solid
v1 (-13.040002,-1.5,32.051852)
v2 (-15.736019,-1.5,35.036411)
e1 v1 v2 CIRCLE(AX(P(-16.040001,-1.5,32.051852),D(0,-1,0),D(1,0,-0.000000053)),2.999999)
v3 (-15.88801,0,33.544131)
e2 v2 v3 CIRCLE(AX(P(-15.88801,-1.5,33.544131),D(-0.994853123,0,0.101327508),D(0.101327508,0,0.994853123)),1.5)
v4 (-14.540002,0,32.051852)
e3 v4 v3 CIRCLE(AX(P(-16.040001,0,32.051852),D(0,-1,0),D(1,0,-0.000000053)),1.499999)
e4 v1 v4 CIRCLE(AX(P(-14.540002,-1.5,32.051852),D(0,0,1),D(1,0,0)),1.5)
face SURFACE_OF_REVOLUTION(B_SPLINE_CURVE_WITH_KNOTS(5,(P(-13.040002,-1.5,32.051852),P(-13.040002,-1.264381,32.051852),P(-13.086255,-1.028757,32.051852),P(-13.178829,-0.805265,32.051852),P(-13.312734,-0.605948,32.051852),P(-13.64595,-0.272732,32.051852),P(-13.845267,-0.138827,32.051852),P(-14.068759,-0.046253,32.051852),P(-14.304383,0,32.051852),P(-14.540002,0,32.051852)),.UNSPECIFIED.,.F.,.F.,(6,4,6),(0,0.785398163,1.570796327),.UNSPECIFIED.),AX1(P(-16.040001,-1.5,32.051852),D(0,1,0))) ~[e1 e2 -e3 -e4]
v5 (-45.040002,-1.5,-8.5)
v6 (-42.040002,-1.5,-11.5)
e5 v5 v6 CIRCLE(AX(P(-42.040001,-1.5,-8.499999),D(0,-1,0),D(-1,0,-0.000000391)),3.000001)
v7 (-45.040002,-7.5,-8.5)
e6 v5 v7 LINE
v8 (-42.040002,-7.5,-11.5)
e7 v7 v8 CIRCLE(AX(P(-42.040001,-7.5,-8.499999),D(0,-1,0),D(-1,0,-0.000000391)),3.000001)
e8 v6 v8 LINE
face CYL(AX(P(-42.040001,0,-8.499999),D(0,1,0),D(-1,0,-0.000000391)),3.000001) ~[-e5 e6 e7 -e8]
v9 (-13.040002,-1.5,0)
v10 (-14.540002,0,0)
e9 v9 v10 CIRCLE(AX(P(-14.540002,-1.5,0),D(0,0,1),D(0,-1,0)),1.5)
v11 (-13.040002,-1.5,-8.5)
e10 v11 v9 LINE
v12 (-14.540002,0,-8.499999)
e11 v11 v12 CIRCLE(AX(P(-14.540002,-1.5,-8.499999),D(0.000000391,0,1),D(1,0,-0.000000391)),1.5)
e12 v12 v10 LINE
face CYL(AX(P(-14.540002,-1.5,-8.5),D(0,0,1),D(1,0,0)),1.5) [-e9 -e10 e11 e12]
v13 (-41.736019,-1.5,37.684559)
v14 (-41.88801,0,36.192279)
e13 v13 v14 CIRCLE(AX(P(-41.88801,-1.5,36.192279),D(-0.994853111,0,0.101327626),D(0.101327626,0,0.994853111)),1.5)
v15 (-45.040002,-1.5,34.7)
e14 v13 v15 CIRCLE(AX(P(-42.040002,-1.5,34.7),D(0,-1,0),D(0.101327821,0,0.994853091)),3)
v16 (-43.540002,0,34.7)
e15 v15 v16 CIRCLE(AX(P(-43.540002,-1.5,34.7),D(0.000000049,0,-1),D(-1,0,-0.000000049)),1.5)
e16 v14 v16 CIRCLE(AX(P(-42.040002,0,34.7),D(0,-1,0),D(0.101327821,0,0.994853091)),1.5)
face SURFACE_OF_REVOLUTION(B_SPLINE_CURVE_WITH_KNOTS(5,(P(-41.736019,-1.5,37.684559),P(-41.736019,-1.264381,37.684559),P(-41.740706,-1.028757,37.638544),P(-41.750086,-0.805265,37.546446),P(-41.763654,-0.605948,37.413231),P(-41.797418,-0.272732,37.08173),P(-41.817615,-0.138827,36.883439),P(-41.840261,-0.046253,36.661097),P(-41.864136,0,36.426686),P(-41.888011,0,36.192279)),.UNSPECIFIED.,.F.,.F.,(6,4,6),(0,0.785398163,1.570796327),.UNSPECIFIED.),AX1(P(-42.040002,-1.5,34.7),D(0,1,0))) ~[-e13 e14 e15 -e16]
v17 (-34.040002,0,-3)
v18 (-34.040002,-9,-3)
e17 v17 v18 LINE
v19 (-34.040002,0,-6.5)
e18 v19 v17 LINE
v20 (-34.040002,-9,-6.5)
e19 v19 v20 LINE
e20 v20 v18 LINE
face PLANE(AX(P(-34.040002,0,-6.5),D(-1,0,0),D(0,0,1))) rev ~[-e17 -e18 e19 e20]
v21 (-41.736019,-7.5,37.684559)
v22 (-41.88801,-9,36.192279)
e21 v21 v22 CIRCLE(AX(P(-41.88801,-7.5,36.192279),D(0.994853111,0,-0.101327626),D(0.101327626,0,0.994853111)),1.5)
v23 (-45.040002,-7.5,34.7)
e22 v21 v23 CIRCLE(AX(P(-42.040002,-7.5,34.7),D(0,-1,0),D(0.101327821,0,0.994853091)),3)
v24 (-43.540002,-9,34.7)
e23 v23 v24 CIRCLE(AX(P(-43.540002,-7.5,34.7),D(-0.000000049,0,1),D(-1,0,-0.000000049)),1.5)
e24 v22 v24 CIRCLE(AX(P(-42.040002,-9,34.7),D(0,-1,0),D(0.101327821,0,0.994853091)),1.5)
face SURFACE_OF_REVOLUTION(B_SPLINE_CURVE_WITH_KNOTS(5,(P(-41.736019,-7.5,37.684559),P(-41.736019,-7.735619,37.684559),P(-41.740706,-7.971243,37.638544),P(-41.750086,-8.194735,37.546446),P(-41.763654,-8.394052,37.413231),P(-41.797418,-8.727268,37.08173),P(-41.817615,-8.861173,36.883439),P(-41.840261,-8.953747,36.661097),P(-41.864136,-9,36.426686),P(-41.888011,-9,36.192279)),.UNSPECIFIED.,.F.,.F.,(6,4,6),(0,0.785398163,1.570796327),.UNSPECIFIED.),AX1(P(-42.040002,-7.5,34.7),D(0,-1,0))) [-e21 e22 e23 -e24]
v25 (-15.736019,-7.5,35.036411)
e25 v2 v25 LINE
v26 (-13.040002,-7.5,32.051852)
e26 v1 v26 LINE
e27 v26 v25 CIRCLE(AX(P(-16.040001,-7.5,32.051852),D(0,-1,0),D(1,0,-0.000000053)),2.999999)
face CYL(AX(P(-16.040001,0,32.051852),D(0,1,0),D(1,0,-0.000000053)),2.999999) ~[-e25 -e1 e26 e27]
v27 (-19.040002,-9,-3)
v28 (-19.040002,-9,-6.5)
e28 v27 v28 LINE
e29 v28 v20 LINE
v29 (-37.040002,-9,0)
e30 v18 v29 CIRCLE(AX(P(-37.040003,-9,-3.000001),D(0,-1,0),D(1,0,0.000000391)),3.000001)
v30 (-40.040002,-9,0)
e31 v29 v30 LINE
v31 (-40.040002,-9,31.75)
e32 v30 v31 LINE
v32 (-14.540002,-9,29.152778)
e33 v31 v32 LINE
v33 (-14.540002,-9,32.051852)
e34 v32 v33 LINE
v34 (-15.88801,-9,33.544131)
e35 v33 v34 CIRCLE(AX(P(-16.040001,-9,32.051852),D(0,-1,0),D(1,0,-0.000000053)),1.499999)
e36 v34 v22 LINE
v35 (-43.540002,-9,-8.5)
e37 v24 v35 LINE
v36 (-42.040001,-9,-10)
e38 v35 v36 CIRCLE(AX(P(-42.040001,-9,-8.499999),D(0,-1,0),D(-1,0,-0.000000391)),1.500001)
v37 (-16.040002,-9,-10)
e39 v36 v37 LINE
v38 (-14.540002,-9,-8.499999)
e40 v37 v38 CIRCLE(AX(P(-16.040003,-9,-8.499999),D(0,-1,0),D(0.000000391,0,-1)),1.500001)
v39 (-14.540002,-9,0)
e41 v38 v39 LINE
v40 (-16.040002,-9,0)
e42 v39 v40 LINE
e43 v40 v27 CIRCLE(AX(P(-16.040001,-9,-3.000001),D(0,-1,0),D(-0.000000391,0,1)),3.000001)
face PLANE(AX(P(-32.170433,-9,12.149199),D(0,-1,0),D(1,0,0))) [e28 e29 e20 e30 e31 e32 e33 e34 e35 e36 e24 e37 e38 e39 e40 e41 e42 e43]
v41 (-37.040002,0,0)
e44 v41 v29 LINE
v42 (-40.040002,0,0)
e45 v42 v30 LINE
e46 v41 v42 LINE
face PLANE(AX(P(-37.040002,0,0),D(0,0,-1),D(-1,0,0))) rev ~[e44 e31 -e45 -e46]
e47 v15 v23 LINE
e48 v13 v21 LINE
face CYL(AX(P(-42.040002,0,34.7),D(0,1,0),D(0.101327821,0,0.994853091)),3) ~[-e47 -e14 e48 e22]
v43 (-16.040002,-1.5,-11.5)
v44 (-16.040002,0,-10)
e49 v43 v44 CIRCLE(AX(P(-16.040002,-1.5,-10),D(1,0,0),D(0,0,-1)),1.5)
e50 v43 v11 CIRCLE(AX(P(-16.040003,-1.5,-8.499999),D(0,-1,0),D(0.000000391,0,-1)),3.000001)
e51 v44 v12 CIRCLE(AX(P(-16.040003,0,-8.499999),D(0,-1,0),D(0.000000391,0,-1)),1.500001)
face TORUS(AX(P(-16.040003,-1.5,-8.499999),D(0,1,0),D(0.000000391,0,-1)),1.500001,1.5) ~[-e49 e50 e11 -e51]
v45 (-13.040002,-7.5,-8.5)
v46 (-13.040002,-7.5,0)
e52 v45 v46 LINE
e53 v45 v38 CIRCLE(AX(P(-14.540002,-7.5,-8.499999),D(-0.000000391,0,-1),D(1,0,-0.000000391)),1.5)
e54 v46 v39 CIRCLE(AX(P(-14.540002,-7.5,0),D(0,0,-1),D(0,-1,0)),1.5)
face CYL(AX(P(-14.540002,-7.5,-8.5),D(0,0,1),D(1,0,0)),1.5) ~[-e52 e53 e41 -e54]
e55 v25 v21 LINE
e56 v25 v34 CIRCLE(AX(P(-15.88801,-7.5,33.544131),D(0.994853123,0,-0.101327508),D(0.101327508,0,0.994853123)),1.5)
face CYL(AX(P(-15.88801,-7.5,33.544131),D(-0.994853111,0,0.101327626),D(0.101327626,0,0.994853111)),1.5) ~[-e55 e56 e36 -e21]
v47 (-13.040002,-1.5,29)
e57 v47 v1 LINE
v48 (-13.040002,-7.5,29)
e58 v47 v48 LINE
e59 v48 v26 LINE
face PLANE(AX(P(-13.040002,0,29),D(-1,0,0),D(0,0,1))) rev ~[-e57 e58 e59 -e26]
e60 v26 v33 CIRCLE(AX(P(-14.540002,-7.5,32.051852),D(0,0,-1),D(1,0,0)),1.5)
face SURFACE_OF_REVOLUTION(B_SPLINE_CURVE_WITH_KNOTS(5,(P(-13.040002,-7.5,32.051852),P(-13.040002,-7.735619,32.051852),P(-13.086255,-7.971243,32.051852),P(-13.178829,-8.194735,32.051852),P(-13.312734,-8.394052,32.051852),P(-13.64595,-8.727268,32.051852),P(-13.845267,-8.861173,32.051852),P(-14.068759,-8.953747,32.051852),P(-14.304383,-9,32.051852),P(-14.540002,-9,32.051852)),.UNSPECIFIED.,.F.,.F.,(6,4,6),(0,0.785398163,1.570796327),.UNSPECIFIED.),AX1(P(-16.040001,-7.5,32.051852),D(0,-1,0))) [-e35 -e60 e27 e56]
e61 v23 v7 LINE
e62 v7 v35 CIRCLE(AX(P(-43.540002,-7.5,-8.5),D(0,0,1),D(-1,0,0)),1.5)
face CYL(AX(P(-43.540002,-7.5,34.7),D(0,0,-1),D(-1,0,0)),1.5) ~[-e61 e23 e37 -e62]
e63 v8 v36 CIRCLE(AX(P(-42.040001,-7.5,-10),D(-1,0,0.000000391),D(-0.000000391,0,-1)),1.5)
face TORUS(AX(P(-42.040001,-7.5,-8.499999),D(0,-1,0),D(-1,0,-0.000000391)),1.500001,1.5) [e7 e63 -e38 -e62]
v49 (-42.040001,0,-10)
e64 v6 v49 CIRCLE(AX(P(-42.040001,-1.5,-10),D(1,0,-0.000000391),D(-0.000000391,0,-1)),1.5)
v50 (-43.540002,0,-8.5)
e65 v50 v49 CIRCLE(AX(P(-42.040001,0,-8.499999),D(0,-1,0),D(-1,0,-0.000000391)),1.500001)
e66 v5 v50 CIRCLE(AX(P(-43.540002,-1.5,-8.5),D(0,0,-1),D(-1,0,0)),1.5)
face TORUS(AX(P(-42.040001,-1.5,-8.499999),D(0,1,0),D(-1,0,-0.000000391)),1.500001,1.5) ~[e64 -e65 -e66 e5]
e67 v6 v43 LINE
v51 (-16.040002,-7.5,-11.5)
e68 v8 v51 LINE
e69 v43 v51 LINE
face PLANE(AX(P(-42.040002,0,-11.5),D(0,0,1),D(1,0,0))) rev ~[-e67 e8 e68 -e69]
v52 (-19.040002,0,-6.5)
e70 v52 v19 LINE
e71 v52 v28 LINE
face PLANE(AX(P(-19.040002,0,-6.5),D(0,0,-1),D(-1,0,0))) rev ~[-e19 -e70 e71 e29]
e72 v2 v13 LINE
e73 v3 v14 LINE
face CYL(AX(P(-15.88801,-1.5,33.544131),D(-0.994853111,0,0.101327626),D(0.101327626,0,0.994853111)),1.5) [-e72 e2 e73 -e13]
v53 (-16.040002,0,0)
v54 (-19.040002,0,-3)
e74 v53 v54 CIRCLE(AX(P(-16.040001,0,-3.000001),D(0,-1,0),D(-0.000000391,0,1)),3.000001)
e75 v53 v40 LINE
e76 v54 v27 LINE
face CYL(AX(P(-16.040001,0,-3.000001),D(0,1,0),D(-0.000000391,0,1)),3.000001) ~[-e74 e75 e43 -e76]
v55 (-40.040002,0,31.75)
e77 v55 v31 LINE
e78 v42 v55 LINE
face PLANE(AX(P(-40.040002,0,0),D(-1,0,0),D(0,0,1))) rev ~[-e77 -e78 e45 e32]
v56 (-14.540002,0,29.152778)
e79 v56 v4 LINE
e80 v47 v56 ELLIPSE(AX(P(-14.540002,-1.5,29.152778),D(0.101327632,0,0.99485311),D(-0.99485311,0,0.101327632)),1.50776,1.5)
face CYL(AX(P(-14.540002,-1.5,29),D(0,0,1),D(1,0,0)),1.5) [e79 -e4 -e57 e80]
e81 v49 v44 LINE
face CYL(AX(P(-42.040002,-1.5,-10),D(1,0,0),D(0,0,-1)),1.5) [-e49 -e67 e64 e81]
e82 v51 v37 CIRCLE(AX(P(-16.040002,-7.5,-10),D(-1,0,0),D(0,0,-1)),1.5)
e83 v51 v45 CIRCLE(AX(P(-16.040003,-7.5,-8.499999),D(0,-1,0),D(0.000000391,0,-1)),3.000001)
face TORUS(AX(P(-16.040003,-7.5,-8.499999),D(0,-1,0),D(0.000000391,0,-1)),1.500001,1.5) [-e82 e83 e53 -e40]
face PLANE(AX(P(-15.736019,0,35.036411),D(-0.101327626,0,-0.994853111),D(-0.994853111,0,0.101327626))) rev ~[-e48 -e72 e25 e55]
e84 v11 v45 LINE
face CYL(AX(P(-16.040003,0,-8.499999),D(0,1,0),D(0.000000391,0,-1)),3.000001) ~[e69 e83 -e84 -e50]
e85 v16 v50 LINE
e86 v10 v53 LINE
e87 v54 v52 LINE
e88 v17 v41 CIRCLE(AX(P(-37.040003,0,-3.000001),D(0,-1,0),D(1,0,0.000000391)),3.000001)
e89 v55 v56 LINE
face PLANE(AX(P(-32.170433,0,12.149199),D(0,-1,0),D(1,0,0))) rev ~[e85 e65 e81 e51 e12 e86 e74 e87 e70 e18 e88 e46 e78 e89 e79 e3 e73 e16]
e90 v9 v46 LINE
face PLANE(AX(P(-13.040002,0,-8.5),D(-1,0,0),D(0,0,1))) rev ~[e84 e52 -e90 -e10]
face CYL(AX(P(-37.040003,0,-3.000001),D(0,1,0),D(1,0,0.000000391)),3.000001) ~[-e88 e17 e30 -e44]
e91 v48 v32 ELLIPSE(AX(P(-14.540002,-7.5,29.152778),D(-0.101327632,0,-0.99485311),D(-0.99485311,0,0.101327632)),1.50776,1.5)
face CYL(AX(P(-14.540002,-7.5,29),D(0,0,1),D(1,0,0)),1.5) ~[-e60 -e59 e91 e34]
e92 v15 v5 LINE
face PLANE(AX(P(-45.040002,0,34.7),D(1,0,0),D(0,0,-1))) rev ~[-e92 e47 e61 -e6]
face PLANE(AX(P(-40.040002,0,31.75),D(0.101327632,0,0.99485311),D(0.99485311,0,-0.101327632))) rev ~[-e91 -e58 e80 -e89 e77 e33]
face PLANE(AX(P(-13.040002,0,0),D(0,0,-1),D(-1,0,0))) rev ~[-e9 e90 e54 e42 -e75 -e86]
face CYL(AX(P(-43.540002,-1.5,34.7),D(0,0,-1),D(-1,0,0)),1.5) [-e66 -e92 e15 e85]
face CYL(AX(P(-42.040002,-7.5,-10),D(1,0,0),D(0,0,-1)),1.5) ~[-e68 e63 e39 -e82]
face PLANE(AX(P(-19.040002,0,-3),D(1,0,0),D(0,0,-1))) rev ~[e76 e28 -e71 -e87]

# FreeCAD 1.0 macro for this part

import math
import FreeCAD as App
import Part
import Sketcher
Q = App.Units.Quantity


def edges_at(feature, points):
    """Names of the edges that pass closest to the given points."""
    edges = feature.Shape.Edges
    near = lambda p: min(range(len(edges)), key=lambda i: edges[i].distToShape(Part.Vertex(*p))[0])
    return sorted({f"Edge{near(p) + 1}" for p in points})

doc = App.newDocument("Part")
body = doc.addObject("PartDesign::Body", "Body")

sketch1 = doc.addObject("Sketcher::SketchObject", "Sketch")
body.addObject(sketch1)
sketch1.AttachmentSupport = (doc.XZ_Plane, [""])
sketch1.MapMode = "FlatFace"
sketch1.addGeometry([
    Part.LineSegment(App.Vector(-40.040002, 31.75, 0), App.Vector(-13.040002, 29, 0)),
    Part.LineSegment(App.Vector(-13.040002, 29, 0), App.Vector(-13.040002, 32.051852, 0)),
    Part.ArcOfCircle(Part.Circle(App.Vector(-16.040001, 32.051852, 0), App.Vector(0, 0, 1), 2.999999), math.radians(-0.000003), math.radians(84.184381)),
    Part.LineSegment(App.Vector(-15.736019, 35.036411, 0), App.Vector(-41.736019, 37.684559, 0)),
    Part.ArcOfCircle(Part.Circle(App.Vector(-42.040002, 34.7, 0), App.Vector(0, 0, 1), 3), math.radians(84.184363), math.radians(180.000003)),
    Part.LineSegment(App.Vector(-45.040002, 34.7, 0), App.Vector(-45.040002, -8.5, 0)),
    Part.ArcOfCircle(Part.Circle(App.Vector(-42.040001, -8.499999, 0), App.Vector(0, 0, 1), 3.000001), math.radians(-179.999978), math.radians(-90.000022)),
    Part.LineSegment(App.Vector(-42.040002, -11.5, 0), App.Vector(-16.040002, -11.5, 0)),
    Part.ArcOfCircle(Part.Circle(App.Vector(-16.040003, -8.499999, 0), App.Vector(0, 0, 1), 3.000001), math.radians(-89.999978), math.radians(-0.000022)),
    Part.LineSegment(App.Vector(-13.040002, -8.5, 0), App.Vector(-13.040002, 0, 0)),
    Part.LineSegment(App.Vector(-13.040002, 0, 0), App.Vector(-16.040002, 0, 0)),
    Part.ArcOfCircle(Part.Circle(App.Vector(-16.040001, -3.000001, 0), App.Vector(0, 0, 1), 3.000001), math.radians(90.000022), math.radians(179.999978)),
    Part.LineSegment(App.Vector(-19.040002, -3, 0), App.Vector(-19.040002, -6.5, 0)),
    Part.LineSegment(App.Vector(-19.040002, -6.5, 0), App.Vector(-34.040002, -6.5, 0)),
    Part.LineSegment(App.Vector(-34.040002, -6.5, 0), App.Vector(-34.040002, -3, 0)),
    Part.ArcOfCircle(Part.Circle(App.Vector(-37.040003, -3.000001, 0), App.Vector(0, 0, 1), 3.000001), math.radians(0.000022), math.radians(89.999978)),
    Part.LineSegment(App.Vector(-37.040002, 0, 0), App.Vector(-40.040002, 0, 0)),
    Part.LineSegment(App.Vector(-40.040002, 0, 0), App.Vector(-40.040002, 31.75, 0)),
], False)
sketch1.addConstraint([
    Sketcher.Constraint("Coincident", 0, 2, 1, 1),
    Sketcher.Constraint("Tangent", 1, 2, 2, 1),
    Sketcher.Constraint("Tangent", 2, 2, 3, 1),
    Sketcher.Constraint("Tangent", 3, 2, 4, 1),
    Sketcher.Constraint("Tangent", 4, 2, 5, 1),
    Sketcher.Constraint("Tangent", 5, 2, 6, 1),
    Sketcher.Constraint("Tangent", 6, 2, 7, 1),
    Sketcher.Constraint("Tangent", 7, 2, 8, 1),
    Sketcher.Constraint("Tangent", 8, 2, 9, 1),
    Sketcher.Constraint("Coincident", 9, 2, 10, 1),
    Sketcher.Constraint("Tangent", 10, 2, 11, 1),
    Sketcher.Constraint("Tangent", 11, 2, 12, 1),
    Sketcher.Constraint("Coincident", 12, 2, 13, 1),
    Sketcher.Constraint("Coincident", 13, 2, 14, 1),
    Sketcher.Constraint("Tangent", 14, 2, 15, 1),
    Sketcher.Constraint("Tangent", 15, 2, 16, 1),
    Sketcher.Constraint("Coincident", 16, 2, 17, 1),
    Sketcher.Constraint("Coincident", 17, 2, 0, 1),
    Sketcher.Constraint("Vertical", 1),
    Sketcher.Constraint("Vertical", 5),
    Sketcher.Constraint("Horizontal", 7),
    Sketcher.Constraint("Vertical", 9),
    Sketcher.Constraint("Horizontal", 10),
    Sketcher.Constraint("Vertical", 12),
    Sketcher.Constraint("Horizontal", 13),
    Sketcher.Constraint("Vertical", 14),
    Sketcher.Constraint("Horizontal", 16),
    Sketcher.Constraint("Vertical", 17),
    Sketcher.Constraint("Equal", 2, 4),
    Sketcher.Constraint("Equal", 4, 6),
    Sketcher.Constraint("Equal", 6, 8),
    Sketcher.Constraint("Equal", 8, 11),
    Sketcher.Constraint("Equal", 11, 15),
    Sketcher.Constraint("PointOnObject", 9, 2, -1),
    Sketcher.Constraint("PointOnObject", 15, 2, -1),
    Sketcher.Constraint("Parallel", 0, 3),
    Sketcher.Constraint("Vertical", 2, 3, 8, 3),
    Sketcher.Constraint("Vertical", 2, 3, 11, 3),
    Sketcher.Constraint("Equal", 10, 16),
    Sketcher.Constraint("Radius", 2, Q("2.999999 mm")),
    Sketcher.Constraint("DistanceX", 7, 1, 7, 2, Q("26 mm")),
    Sketcher.Constraint("DistanceX", 13, 2, 13, 1, Q("15 mm")),
    Sketcher.Constraint("DistanceY", 5, 2, 5, 1, Q("43.2 mm")),
    Sketcher.Constraint("DistanceY", 9, 1, 9, 2, Q("8.5 mm")),
    Sketcher.Constraint("DistanceY", 12, 2, 12, 1, Q("3.5 mm")),
    Sketcher.Constraint("DistanceY", -1, 1, 0, 2, Q("29 mm")),
    Sketcher.Constraint("DistanceY", 17, 1, 17, 2, Q("31.75 mm")),
    Sketcher.Constraint("DistanceX", 2, 3, -1, 1, Q("16.040001 mm")),
])
pad1 = doc.addObject("PartDesign::Pad", "Pad")
body.addObject(pad1)
pad1.Profile = sketch1
pad1.Length = 9
doc.recompute()

fillet = doc.addObject("PartDesign::Fillet", "Fillet")
body.addObject(fillet)
fillet.Base = (pad1, edges_at(pad1, [(-29.04, -9, -11.5), (-45.04, 0, 13.1)]))
fillet.Radius = 1.5

doc.recompute()
